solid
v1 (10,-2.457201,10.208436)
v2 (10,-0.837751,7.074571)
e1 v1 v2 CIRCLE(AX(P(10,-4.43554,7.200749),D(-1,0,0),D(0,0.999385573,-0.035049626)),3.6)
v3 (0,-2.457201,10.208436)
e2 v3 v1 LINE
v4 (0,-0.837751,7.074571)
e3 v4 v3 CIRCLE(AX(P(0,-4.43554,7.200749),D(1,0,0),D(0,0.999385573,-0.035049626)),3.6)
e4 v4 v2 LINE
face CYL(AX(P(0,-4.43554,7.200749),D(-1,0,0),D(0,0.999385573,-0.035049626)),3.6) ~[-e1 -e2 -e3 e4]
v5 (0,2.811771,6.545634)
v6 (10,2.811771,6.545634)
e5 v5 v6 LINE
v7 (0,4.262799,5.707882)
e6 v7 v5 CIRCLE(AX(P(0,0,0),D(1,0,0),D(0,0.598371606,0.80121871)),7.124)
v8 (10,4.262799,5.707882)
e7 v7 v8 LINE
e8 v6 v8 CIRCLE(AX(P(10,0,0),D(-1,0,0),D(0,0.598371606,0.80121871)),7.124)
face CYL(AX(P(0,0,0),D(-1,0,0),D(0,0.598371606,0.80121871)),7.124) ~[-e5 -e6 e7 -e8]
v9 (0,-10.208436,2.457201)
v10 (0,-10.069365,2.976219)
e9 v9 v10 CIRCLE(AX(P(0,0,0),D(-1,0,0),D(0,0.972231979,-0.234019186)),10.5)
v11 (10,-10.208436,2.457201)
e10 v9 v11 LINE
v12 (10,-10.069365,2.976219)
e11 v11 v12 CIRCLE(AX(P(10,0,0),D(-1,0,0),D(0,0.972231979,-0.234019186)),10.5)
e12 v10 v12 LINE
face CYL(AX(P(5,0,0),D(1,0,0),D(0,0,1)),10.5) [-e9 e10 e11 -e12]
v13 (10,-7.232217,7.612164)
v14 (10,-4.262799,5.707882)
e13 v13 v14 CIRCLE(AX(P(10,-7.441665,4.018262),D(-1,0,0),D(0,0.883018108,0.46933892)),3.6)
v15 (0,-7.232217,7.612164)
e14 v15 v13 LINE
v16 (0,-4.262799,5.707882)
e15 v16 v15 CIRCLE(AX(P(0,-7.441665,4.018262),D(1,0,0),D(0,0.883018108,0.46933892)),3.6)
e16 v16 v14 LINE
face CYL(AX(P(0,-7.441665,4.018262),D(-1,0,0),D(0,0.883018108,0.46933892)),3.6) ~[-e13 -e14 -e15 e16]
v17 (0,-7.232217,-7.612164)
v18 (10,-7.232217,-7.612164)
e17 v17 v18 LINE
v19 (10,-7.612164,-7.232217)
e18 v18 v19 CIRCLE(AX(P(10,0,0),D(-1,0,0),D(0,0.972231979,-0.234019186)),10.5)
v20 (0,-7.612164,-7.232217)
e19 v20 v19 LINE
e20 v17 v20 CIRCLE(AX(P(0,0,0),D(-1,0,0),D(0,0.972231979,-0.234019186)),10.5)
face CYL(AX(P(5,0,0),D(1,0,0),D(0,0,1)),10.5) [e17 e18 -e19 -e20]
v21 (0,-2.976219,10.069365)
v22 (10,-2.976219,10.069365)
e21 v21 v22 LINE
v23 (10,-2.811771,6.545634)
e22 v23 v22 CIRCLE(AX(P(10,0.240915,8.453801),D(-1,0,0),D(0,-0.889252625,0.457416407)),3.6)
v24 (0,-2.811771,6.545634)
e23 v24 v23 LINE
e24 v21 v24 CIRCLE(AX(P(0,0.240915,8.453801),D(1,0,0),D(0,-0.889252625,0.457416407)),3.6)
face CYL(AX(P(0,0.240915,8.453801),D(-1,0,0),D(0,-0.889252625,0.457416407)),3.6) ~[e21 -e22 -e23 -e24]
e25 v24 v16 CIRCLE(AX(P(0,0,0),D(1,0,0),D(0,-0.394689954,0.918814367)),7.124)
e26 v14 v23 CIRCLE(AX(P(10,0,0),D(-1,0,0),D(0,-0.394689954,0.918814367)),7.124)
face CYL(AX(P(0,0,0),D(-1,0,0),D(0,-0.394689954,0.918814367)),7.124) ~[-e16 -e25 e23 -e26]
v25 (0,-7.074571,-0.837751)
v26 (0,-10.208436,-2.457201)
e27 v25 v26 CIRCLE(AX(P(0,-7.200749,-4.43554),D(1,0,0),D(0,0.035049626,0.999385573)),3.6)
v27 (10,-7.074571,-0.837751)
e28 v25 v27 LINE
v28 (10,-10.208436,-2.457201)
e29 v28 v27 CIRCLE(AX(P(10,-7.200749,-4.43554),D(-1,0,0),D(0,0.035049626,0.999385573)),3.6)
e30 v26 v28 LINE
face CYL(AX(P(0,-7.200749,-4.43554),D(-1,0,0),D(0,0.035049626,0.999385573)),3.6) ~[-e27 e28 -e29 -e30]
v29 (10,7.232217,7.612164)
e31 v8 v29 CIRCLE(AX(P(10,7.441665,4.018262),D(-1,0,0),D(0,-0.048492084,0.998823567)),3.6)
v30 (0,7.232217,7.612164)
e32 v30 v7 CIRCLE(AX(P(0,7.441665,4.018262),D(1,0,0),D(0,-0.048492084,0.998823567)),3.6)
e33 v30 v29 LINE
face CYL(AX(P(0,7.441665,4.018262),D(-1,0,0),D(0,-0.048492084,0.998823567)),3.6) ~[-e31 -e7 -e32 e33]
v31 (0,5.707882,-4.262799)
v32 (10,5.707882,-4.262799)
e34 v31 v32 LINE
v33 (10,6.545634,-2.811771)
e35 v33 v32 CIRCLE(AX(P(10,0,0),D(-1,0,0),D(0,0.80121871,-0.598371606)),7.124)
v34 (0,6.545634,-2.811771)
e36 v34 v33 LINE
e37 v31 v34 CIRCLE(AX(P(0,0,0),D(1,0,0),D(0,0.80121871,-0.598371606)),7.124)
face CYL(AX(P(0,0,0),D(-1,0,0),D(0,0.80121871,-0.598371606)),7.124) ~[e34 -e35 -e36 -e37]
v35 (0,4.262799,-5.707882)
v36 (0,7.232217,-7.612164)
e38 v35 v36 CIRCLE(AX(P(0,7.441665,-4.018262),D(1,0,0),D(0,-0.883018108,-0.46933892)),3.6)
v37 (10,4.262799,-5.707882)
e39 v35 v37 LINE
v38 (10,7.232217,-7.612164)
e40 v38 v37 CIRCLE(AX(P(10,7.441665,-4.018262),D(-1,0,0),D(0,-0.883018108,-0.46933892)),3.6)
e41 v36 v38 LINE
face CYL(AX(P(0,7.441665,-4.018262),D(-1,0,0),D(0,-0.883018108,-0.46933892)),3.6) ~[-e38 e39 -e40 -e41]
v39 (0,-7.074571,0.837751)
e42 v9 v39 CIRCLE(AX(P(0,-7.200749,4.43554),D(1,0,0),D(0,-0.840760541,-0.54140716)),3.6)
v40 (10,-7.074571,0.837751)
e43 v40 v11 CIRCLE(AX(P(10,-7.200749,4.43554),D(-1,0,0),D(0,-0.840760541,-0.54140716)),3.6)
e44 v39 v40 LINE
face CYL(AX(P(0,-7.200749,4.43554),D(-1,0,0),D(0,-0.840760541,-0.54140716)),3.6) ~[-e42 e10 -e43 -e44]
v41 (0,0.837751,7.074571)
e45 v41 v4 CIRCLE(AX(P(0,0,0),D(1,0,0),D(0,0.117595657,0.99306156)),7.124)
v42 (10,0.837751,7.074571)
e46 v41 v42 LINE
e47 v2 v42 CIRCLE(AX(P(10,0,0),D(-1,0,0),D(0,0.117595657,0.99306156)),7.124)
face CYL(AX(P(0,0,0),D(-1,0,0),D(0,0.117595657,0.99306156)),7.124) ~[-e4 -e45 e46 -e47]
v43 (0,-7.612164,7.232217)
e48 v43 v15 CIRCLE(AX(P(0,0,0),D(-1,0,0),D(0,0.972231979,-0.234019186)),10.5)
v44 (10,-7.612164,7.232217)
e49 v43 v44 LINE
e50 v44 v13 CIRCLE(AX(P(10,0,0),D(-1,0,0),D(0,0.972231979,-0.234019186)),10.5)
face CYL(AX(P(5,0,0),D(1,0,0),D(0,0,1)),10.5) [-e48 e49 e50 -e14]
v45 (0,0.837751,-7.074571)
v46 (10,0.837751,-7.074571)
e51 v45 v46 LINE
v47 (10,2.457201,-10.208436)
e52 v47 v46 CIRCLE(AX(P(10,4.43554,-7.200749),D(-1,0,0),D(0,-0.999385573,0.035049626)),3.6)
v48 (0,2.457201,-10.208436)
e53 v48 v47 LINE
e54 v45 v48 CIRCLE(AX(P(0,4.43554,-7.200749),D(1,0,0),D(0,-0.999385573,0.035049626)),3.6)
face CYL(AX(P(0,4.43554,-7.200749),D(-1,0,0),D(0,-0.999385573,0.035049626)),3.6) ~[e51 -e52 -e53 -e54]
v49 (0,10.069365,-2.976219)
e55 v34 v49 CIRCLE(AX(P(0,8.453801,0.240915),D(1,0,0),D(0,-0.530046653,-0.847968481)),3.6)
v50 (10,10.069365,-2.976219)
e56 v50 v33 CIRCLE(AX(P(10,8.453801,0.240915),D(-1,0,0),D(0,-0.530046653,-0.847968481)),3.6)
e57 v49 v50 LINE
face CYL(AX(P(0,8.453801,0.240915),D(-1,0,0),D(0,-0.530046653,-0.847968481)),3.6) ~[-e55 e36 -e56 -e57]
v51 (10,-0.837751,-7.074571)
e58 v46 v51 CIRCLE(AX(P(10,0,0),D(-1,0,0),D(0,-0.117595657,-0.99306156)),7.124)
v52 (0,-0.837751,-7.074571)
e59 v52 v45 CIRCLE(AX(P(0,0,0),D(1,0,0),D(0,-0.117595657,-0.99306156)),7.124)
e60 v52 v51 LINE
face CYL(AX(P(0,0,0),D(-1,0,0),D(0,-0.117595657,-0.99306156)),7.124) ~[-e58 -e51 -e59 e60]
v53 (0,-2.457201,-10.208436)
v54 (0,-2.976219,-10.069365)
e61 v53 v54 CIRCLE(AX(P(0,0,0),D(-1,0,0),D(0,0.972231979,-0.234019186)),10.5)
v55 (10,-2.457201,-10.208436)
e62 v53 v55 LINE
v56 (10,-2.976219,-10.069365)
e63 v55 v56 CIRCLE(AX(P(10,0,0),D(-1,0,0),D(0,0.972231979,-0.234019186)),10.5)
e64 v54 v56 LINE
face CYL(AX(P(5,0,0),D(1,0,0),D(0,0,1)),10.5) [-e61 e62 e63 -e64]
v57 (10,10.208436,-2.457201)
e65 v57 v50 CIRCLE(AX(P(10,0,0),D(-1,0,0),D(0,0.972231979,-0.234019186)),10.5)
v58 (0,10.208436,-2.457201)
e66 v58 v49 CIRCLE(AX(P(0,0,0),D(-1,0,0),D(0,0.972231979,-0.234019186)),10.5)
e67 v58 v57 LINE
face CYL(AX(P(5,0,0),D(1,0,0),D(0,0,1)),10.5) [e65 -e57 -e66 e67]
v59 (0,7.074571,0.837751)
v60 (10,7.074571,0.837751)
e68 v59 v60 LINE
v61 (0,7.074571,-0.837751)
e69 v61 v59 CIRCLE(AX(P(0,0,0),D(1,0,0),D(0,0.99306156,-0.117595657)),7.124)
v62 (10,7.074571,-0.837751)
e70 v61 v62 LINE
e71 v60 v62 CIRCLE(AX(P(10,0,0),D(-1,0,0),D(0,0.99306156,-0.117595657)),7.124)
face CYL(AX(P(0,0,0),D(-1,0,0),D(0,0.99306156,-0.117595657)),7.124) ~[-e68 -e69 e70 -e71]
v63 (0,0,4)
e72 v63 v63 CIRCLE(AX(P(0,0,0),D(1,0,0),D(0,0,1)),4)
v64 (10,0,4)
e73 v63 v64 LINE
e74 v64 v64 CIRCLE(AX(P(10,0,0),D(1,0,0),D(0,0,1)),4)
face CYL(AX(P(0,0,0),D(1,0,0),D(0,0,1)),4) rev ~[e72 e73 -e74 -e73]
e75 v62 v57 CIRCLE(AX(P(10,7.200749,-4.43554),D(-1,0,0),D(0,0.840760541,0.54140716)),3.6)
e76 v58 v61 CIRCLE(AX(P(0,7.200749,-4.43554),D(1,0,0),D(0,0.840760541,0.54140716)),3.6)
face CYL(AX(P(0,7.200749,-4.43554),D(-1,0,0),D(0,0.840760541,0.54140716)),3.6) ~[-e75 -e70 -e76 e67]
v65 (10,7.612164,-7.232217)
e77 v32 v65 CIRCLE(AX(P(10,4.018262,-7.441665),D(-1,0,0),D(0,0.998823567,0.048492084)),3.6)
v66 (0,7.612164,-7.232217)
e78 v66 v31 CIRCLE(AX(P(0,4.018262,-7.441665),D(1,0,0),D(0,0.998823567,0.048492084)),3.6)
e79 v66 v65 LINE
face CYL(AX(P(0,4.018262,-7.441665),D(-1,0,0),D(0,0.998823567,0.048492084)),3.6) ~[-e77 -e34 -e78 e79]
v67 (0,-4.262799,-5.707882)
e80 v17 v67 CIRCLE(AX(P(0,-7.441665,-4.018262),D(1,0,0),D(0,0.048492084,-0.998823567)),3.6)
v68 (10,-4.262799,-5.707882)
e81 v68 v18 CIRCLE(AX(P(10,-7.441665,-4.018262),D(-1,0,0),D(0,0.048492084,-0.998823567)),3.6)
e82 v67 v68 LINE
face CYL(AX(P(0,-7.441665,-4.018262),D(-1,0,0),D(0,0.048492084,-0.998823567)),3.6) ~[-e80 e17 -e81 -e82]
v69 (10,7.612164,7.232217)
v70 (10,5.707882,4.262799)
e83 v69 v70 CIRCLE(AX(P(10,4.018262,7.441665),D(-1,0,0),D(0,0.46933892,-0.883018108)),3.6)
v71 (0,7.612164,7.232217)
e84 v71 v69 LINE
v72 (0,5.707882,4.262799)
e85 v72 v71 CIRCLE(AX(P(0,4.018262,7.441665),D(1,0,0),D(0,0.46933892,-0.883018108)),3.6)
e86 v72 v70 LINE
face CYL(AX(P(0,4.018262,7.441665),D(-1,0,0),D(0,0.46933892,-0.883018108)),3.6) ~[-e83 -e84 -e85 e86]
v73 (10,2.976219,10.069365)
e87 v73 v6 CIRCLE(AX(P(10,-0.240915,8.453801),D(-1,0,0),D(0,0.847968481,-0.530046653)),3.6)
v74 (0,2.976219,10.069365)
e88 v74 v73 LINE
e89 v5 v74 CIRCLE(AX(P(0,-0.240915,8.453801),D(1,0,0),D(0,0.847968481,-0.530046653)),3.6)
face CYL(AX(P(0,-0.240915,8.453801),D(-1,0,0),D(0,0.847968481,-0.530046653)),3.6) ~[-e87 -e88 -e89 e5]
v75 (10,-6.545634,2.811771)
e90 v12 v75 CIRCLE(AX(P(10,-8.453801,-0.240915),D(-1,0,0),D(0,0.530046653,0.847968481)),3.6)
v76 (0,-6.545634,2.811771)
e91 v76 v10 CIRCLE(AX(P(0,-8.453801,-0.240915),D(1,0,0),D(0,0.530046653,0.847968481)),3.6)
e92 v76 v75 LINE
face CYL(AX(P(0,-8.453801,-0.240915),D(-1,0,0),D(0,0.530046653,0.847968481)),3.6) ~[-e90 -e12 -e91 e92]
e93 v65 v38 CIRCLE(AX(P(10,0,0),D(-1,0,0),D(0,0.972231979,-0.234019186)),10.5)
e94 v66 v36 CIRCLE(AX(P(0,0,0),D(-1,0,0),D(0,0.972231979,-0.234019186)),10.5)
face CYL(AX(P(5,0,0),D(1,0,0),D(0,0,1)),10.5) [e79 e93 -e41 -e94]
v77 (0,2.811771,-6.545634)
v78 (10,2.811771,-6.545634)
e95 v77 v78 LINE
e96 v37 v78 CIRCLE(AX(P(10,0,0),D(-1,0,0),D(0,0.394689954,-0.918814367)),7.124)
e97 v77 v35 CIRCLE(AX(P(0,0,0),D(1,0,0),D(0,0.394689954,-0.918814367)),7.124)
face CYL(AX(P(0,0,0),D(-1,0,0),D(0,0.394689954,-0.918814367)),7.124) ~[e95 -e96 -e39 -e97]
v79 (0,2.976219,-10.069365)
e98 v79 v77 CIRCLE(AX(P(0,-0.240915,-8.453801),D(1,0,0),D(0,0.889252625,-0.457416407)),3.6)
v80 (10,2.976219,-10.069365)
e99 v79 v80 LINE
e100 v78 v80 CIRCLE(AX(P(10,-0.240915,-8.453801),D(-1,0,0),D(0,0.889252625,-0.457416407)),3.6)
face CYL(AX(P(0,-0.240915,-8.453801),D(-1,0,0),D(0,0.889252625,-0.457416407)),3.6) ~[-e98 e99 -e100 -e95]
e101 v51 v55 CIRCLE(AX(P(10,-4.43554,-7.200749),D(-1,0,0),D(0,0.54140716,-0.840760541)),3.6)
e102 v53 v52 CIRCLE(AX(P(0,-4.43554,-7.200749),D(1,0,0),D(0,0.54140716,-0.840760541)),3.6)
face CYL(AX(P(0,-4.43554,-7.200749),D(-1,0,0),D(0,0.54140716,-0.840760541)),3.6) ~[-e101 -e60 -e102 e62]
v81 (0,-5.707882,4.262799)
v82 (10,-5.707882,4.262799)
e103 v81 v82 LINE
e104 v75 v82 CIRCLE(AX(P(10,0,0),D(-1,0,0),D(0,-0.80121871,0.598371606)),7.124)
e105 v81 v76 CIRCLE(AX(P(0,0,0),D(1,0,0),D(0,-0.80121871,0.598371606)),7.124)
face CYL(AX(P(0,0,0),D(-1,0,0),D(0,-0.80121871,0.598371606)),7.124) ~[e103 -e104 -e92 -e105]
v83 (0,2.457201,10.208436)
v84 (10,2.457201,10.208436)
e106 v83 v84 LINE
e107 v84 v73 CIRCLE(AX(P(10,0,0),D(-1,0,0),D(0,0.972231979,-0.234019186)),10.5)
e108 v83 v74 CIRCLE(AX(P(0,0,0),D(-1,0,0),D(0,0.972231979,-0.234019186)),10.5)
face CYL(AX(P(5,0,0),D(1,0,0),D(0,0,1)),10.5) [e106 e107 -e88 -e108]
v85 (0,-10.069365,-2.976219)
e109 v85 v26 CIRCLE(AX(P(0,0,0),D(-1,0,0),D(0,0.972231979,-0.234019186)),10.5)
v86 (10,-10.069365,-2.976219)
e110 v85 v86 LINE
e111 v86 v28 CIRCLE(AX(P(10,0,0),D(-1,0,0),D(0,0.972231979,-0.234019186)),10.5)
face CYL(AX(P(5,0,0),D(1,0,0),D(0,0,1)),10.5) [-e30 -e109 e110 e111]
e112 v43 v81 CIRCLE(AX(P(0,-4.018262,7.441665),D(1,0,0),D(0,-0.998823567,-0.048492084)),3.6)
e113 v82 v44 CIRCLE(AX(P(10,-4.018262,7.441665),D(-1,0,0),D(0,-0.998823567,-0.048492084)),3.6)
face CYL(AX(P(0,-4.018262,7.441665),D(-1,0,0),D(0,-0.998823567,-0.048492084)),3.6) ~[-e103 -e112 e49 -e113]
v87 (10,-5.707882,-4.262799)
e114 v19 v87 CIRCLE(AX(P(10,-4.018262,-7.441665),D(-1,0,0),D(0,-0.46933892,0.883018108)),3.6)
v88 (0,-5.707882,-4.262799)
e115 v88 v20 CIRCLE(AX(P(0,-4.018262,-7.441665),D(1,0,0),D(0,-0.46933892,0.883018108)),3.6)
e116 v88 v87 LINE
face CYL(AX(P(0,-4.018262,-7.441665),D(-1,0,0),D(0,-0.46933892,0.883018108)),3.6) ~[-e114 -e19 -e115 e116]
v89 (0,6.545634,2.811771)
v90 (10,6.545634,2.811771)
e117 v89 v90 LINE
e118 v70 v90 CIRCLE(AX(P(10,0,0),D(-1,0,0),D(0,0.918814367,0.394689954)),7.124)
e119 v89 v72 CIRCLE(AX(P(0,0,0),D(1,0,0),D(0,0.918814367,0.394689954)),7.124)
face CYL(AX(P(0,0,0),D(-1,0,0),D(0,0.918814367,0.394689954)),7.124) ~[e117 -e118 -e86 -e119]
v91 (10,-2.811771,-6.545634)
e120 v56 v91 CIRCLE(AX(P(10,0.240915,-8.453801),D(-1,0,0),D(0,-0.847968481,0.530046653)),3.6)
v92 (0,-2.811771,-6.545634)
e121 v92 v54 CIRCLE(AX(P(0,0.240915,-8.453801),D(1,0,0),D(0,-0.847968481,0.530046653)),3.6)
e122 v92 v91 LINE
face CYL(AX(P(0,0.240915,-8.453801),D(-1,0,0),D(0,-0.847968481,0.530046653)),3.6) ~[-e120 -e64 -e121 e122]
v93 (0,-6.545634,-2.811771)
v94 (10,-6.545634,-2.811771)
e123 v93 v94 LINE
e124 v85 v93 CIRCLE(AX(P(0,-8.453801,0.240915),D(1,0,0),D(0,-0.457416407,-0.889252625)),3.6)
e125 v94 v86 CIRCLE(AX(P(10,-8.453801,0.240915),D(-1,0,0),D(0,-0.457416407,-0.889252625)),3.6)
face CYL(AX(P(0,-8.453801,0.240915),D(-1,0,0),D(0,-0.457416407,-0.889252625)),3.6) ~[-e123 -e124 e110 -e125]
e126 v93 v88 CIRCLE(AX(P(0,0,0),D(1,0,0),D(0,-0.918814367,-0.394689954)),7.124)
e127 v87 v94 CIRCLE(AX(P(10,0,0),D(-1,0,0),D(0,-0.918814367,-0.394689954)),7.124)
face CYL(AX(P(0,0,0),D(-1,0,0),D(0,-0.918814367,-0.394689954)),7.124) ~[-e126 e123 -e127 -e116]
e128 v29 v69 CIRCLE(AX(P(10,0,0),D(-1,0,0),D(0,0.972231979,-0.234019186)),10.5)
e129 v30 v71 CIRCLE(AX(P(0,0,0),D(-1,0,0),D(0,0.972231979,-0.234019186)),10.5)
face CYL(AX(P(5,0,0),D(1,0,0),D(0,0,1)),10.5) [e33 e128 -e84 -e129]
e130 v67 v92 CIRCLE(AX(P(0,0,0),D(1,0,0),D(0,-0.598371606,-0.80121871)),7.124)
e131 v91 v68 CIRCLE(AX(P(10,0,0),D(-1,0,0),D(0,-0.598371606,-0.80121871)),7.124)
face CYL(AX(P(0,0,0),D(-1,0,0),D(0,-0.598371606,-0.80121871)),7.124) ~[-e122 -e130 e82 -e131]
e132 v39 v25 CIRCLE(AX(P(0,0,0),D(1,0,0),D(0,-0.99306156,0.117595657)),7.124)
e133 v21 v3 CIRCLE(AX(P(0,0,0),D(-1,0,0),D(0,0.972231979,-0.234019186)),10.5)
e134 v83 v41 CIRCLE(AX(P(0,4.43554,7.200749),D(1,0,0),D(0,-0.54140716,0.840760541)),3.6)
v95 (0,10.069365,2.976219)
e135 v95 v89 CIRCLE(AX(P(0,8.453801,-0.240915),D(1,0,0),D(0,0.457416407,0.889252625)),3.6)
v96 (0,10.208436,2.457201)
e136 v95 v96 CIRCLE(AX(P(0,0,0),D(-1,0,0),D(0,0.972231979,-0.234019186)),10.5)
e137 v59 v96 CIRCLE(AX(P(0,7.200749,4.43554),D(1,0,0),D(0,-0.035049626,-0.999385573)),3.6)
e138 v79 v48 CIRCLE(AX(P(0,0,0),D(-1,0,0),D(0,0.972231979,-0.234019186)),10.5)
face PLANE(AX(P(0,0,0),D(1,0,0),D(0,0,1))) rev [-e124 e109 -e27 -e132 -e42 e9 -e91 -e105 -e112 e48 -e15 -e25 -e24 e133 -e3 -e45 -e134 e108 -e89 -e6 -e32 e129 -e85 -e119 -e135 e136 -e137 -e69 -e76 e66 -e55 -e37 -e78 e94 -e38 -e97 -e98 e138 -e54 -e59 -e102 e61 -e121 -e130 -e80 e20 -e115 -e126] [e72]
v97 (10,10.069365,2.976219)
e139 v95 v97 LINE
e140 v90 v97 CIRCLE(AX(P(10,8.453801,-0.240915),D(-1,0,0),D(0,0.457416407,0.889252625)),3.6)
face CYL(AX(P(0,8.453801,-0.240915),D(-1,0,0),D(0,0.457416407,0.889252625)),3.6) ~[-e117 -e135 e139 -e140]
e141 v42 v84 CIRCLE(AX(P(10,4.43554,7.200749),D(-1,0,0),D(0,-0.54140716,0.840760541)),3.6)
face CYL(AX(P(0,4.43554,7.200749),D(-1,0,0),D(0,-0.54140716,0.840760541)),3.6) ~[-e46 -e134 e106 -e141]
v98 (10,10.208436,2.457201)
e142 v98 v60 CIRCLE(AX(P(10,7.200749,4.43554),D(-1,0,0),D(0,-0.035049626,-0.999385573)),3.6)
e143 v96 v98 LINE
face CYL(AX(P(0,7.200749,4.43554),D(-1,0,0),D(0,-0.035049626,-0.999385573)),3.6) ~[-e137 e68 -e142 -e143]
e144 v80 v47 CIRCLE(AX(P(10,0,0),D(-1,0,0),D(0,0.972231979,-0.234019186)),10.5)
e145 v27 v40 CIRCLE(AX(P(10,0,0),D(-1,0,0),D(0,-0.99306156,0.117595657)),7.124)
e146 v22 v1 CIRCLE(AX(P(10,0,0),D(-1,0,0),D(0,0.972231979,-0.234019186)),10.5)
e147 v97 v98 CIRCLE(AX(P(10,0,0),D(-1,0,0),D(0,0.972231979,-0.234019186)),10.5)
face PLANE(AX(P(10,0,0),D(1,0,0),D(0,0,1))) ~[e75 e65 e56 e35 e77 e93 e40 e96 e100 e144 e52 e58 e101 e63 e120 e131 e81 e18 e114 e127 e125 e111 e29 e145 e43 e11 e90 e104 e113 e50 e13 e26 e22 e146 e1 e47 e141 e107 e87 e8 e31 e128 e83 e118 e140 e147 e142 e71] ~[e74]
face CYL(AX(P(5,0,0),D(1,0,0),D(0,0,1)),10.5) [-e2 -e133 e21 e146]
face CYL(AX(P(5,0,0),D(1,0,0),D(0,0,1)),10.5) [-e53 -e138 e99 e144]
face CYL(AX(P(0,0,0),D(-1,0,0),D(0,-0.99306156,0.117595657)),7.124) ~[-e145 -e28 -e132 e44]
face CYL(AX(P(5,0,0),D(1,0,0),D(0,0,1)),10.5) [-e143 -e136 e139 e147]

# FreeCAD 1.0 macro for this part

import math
import FreeCAD as App
import Part
import Sketcher
from FreeCAD import Vector


def add_polygon(sketch, points):
    """Adds a closed chain of lines whose ends are joined by coincident constraints."""
    first, n = sketch.GeometryCount, len(points)
    for a, b in zip(points, points[1:] + points[:1]):
        sketch.addGeometry(Part.LineSegment(App.Vector(*a, 0), App.Vector(*b, 0)), False)
    for i in range(n):
        sketch.addConstraint(Sketcher.Constraint("Coincident", first + i, 2, first + (i + 1) % n, 1))

doc = App.newDocument("Part")
body = doc.addObject("PartDesign::Body", "Body")

# Sketch on XZ plane
sketch1 = body.newObject("Sketcher::SketchObject", "Sketch")
sketch1.AttachmentSupport = (doc.getObject("XZ_Plane"), [""])
sketch1.MapMode = "FlatFace"
add_polygon(sketch1, [(0, -10), (0, 0), (10, 0), (10, -10)])  # lines 0-3
sketch1.addConstraint([
    Sketcher.Constraint("Vertical", 0),
    Sketcher.Constraint("Horizontal", 1),
    Sketcher.Constraint("Vertical", 2),
    Sketcher.Constraint("Horizontal", 3),
    Sketcher.Constraint("Coincident", 0, 2, -1, 1),
    Sketcher.Constraint("DistanceX", 1, 1, 1, 2, 10.0),
    Sketcher.Constraint("DistanceY", 0, 1, 0, 2, 10.5),
])
revolution = body.newObject("PartDesign::Revolution", "Revolution")
revolution.Profile = sketch1
revolution.ReferenceAxis = (sketch1, ["H_Axis"])
revolution.Angle = 360

# Sketch on YZ plane
sketch2 = body.newObject("Sketcher::SketchObject", "Sketch001")
sketch2.AttachmentSupport = (doc.getObject("YZ_Plane"), [""])
sketch2.MapMode = "FlatFace"
sketch2.addGeometry([
    Part.ArcOfCircle(Part.Circle(Vector(0, 0, 0), Vector(0, 0, 1), 7.1), math.radians(-6.75), math.radians(6.75)),
    Part.ArcOfCircle(Part.Circle(Vector(7.2, -4.4, 0), Vector(0, 0, 1), 3.6), math.radians(33), math.radians(92)),
    Part.ArcOfCircle(Part.Circle(Vector(0, 0, 0), Vector(0, 0, 1), 10.5), math.radians(-14), math.radians(14)),
    Part.ArcOfCircle(Part.Circle(Vector(7.2, 4.4, 0), Vector(0, 0, 1), 3.6), math.radians(-92), math.radians(-33)),
], False)
sketch2.addConstraint([
    Sketcher.Constraint("Coincident", 0, 1, 1, 2),
    Sketcher.Constraint("Coincident", 1, 1, 2, 1),
    Sketcher.Constraint("Coincident", 2, 2, 3, 2),
    Sketcher.Constraint("Coincident", 3, 1, 0, 2),
    Sketcher.Constraint("Coincident", 0, 3, -1, 1),
    Sketcher.Constraint("Coincident", 2, 3, -1, 1),
    Sketcher.Constraint("Equal", 1, 3),
    Sketcher.Constraint("Symmetric", 1, 3, 3, 3, -1),
    Sketcher.Constraint("Radius", 1, 3.6),
    Sketcher.Constraint("Radius", 0, 7.124),
    Sketcher.Constraint("Radius", 2, 10.5254),
    Sketcher.Constraint("DistanceX", -1, 1, 1, 3, 7.200749),
    Sketcher.Constraint("DistanceY", 1, 3, -1, 1, 4.43554),
])
pocket1 = body.newObject("PartDesign::Pocket", "Pocket")
pocket1.Profile = sketch2
pocket1.Type = "ThroughAll"
pocket1.Reversed = True
doc.recompute()

polarpattern = body.newObject("PartDesign::PolarPattern", "PolarPattern")
polarpattern.Originals = [pocket1]
polarpattern.Axis = (doc.getObject("X_Axis"), [""])
polarpattern.Angle = 360
polarpattern.Occurrences = 12
body.Tip = polarpattern

# Sketch on YZ plane
sketch3 = body.newObject("Sketcher::SketchObject", "Sketch002")
sketch3.AttachmentSupport = (doc.getObject("YZ_Plane"), [""])
sketch3.MapMode = "FlatFace"
sketch3.addGeometry(Part.Circle(Vector(0, 0, 0), Vector(0, 0, 1), 4), False)
sketch3.addConstraint([
    Sketcher.Constraint("Coincident", 0, 3, -1, 1),
    Sketcher.Constraint("Diameter", 0, 8.0),
])
pocket2 = body.newObject("PartDesign::Pocket", "Pocket001")
pocket2.Profile = sketch3
pocket2.Length = 100.000102
pocket2.Midplane = True

doc.recompute()
